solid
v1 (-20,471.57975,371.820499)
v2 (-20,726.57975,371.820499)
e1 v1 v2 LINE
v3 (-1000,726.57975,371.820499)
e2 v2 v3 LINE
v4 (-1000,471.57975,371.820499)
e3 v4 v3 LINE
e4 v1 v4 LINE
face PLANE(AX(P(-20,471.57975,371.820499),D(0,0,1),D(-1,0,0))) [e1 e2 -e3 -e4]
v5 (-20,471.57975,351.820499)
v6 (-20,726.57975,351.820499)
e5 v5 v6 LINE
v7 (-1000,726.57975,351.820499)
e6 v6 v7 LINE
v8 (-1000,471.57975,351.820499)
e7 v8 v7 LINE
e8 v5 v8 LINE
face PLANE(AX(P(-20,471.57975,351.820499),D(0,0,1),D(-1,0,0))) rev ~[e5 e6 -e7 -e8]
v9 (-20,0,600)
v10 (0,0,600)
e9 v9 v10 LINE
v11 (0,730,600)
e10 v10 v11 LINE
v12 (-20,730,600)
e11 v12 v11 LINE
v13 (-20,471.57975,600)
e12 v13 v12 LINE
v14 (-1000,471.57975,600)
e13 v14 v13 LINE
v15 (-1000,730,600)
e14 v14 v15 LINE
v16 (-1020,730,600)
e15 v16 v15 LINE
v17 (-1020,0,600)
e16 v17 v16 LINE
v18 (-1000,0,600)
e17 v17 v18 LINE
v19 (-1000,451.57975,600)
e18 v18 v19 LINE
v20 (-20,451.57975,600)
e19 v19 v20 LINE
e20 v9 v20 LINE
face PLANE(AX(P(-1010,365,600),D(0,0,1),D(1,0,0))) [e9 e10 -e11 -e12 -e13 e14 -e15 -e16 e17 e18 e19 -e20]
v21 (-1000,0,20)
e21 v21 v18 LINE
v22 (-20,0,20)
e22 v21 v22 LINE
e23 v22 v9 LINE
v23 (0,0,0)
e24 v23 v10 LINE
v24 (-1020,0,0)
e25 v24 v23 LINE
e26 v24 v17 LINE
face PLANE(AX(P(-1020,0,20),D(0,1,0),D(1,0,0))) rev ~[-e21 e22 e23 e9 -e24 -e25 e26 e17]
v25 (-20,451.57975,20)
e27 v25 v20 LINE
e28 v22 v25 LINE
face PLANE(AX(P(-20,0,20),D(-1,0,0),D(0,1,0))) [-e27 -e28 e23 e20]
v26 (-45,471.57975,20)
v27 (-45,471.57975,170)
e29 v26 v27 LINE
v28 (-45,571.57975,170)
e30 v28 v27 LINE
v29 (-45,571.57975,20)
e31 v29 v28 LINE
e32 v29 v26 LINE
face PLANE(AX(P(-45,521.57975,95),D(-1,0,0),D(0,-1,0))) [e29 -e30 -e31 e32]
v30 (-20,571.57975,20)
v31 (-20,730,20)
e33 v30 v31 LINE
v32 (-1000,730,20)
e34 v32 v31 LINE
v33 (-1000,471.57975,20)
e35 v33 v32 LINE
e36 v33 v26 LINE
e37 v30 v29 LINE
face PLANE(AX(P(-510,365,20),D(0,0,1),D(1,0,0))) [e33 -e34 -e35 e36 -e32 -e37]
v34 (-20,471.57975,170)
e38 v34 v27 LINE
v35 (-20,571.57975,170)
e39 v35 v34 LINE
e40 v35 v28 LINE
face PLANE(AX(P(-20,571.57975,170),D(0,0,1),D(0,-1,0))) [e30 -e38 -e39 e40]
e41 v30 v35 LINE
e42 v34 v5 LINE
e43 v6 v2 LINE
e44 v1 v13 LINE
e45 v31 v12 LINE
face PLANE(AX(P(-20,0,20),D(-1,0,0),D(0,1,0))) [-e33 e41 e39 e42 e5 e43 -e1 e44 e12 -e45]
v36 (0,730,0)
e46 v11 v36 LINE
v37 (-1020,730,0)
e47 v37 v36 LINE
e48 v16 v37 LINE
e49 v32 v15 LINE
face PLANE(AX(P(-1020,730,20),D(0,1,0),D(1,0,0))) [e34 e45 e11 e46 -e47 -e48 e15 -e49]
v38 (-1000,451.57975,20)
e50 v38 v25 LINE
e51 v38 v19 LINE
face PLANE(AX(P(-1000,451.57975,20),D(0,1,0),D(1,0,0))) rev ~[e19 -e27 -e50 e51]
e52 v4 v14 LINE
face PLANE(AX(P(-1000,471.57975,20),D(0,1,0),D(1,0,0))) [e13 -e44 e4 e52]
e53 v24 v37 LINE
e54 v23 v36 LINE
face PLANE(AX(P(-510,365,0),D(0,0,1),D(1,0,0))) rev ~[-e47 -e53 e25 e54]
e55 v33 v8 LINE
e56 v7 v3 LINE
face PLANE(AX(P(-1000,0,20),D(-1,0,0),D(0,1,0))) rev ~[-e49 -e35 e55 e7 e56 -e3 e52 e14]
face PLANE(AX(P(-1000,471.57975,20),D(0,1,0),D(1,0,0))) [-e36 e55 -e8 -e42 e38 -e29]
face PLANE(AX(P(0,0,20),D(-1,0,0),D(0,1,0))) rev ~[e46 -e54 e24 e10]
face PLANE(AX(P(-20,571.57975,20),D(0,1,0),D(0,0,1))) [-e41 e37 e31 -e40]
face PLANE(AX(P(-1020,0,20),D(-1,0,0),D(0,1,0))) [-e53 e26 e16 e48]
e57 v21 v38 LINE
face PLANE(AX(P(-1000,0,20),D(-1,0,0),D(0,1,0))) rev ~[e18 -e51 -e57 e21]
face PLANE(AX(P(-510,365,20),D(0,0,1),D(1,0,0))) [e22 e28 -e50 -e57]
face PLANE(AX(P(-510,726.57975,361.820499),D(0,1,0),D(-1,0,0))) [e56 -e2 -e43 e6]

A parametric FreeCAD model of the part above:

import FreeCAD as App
import Part
import Sketcher

V = App.Vector
Q = App.Units.Quantity

doc = App.newDocument("Part")
params = doc.addObject("Spreadsheet::Sheet", "Params")
for row, (alias, value) in enumerate([
    ("sketch1_width", "1020 mm"),
    ("sketch1_height", "730 mm"),
    ("pad1_length", "20 mm"),
    ("sketch2_width", "20 mm"),
    ("sketch2_height", "730 mm"),
    ("pad2_length", "580 mm"),
    ("sketch3_width", "20 mm"),
    ("sketch3_height", "730 mm"),
    ("pad3_length", "580 mm"),
    ("sketch4_width", "980 mm"),
    ("sketch4_height", "20 mm"),
    ("pad4_length", "580 mm"),
    ("sketch5_width", "980 mm"),
    ("sketch5_height", "20 mm"),
    ("pad5_length", "255 mm"),
    ("sketch6_width", "100 mm"),
    ("sketch6_height", "150 mm"),
    ("pad6_length", "25 mm"),
], start=1):
    params.set(f"A{row}", alias)
    params.set(f"B{row}", "=" + value)
    params.setAlias(f"B{row}", alias)

body = doc.addObject("PartDesign::Body", "Body")

sketch1 = body.newObject("Sketcher::SketchObject", "Sketch")
sketch1.AttachmentSupport = (doc.getObject("XY_Plane"), [""])
sketch1.MapMode = "FlatFace"
sketch1.addGeometry([
    Part.LineSegment(V(-1020, 730, 0), V(-1020, 0, 0)),
    Part.LineSegment(V(-1020, 0, 0), V(0, 0, 0)),
    Part.LineSegment(V(0, 0, 0), V(0, 730, 0)),
    Part.LineSegment(V(0, 730, 0), V(-1020, 730, 0)),
], False)
sketch1.addConstraint([
    Sketcher.Constraint("Coincident", 0, 2, 1, 1),
    Sketcher.Constraint("Coincident", 1, 2, 2, 1),
    Sketcher.Constraint("Coincident", 2, 2, 3, 1),
    Sketcher.Constraint("Coincident", 3, 2, 0, 1),
    Sketcher.Constraint("Vertical", 0),
    Sketcher.Constraint("Horizontal", 1),
    Sketcher.Constraint("Vertical", 2),
    Sketcher.Constraint("Horizontal", 3),
    Sketcher.Constraint("Coincident", 1, 2, -1, 1),
    Sketcher.Constraint("DistanceX", 1, 1, 1, 2, Q("1020 mm")),
    Sketcher.Constraint("DistanceY", 0, 2, 0, 1, Q("730 mm")),
])
sketch1.setExpression("Constraints[9]", "Params.sketch1_width")
sketch1.setExpression("Constraints[10]", "Params.sketch1_height")
pad1 = body.newObject("PartDesign::Pad", "Pad")
pad1.Profile = sketch1
pad1.setExpression("Length", "Params.pad1_length")

sketch2 = body.newObject("Sketcher::SketchObject", "Sketch001")
sketch2.AttachmentSupport = (doc.getObject("XY_Plane"), [""])
sketch2.MapMode = "FlatFace"
sketch2.AttachmentOffset = App.Placement(V(0, 0, 20), App.Rotation())
sketch2.addGeometry([
    Part.LineSegment(V(-20, 730, 0), V(-20, 0, 0)),
    Part.LineSegment(V(-20, 0, 0), V(0, 0, 0)),
    Part.LineSegment(V(0, 0, 0), V(0, 730, 0)),
    Part.LineSegment(V(0, 730, 0), V(-20, 730, 0)),
], False)
sketch2.addConstraint([
    Sketcher.Constraint("Coincident", 0, 2, 1, 1),
    Sketcher.Constraint("Coincident", 1, 2, 2, 1),
    Sketcher.Constraint("Coincident", 2, 2, 3, 1),
    Sketcher.Constraint("Coincident", 3, 2, 0, 1),
    Sketcher.Constraint("Vertical", 0),
    Sketcher.Constraint("Horizontal", 1),
    Sketcher.Constraint("Vertical", 2),
    Sketcher.Constraint("Horizontal", 3),
    Sketcher.Constraint("Coincident", 1, 2, -1, 1),
    Sketcher.Constraint("DistanceX", 1, 1, 1, 2, Q("20 mm")),
    Sketcher.Constraint("DistanceY", 0, 2, 0, 1, Q("730 mm")),
])
sketch2.setExpression("Constraints[9]", "Params.sketch2_width")
sketch2.setExpression("Constraints[10]", "Params.sketch2_height")
pad2 = body.newObject("PartDesign::Pad", "Pad001")
pad2.Profile = sketch2
pad2.setExpression("Length", "Params.pad2_length")

sketch3 = body.newObject("Sketcher::SketchObject", "Sketch002")
sketch3.AttachmentSupport = (doc.getObject("XY_Plane"), [""])
sketch3.MapMode = "FlatFace"
sketch3.AttachmentOffset = App.Placement(V(0, 0, 20), App.Rotation())
sketch3.addGeometry([
    Part.LineSegment(V(-1020, 730, 0), V(-1020, 0, 0)),
    Part.LineSegment(V(-1020, 0, 0), V(-1000, 0, 0)),
    Part.LineSegment(V(-1000, 0, 0), V(-1000, 730, 0)),
    Part.LineSegment(V(-1000, 730, 0), V(-1020, 730, 0)),
], False)
sketch3.addConstraint([
    Sketcher.Constraint("Coincident", 0, 2, 1, 1),
    Sketcher.Constraint("Coincident", 1, 2, 2, 1),
    Sketcher.Constraint("Coincident", 2, 2, 3, 1),
    Sketcher.Constraint("Coincident", 3, 2, 0, 1),
    Sketcher.Constraint("Vertical", 0),
    Sketcher.Constraint("Horizontal", 1),
    Sketcher.Constraint("Vertical", 2),
    Sketcher.Constraint("Horizontal", 3),
    Sketcher.Constraint("PointOnObject", 0, 2, -1),
    Sketcher.Constraint("DistanceX", 1, 1, 1, 2, Q("20 mm")),
    Sketcher.Constraint("DistanceY", 0, 2, 0, 1, Q("730 mm")),
    Sketcher.Constraint("DistanceX", 0, 2, -1, 1, Q("1020 mm")),
])
sketch3.setExpression("Constraints[9]", "Params.sketch3_width")
sketch3.setExpression("Constraints[10]", "Params.sketch3_height")
pad3 = body.newObject("PartDesign::Pad", "Pad002")
pad3.Profile = sketch3
pad3.setExpression("Length", "Params.pad3_length")

sketch4 = body.newObject("Sketcher::SketchObject", "Sketch003")
sketch4.AttachmentSupport = (doc.getObject("XY_Plane"), [""])
sketch4.MapMode = "FlatFace"
sketch4.AttachmentOffset = App.Placement(V(0, 0, 20), App.Rotation())
sketch4.addGeometry([
    Part.LineSegment(V(-1000, 472, 0), V(-1000, 452, 0)),
    Part.LineSegment(V(-1000, 452, 0), V(-20, 452, 0)),
    Part.LineSegment(V(-20, 452, 0), V(-20, 472, 0)),
    Part.LineSegment(V(-20, 472, 0), V(-1000, 472, 0)),
], False)
sketch4.addConstraint([
    Sketcher.Constraint("Coincident", 0, 2, 1, 1),
    Sketcher.Constraint("Coincident", 1, 2, 2, 1),
    Sketcher.Constraint("Coincident", 2, 2, 3, 1),
    Sketcher.Constraint("Coincident", 3, 2, 0, 1),
    Sketcher.Constraint("Vertical", 0),
    Sketcher.Constraint("Horizontal", 1),
    Sketcher.Constraint("Vertical", 2),
    Sketcher.Constraint("Horizontal", 3),
    Sketcher.Constraint("DistanceX", 1, 1, 1, 2, Q("980 mm")),
    Sketcher.Constraint("DistanceY", 0, 2, 0, 1, Q("20 mm")),
    Sketcher.Constraint("DistanceX", 0, 2, -1, 1, Q("1000 mm")),
    Sketcher.Constraint("DistanceY", -1, 1, 0, 2, Q("451.57975 mm")),
])
sketch4.setExpression("Constraints[8]", "Params.sketch4_width")
sketch4.setExpression("Constraints[9]", "Params.sketch4_height")
pad4 = body.newObject("PartDesign::Pad", "Pad003")
pad4.Profile = sketch4
pad4.setExpression("Length", "Params.pad4_length")

sketch5 = body.newObject("Sketcher::SketchObject", "Sketch004")
sketch5.AttachmentSupport = (doc.getObject("XZ_Plane"), [""])
sketch5.MapMode = "FlatFace"
sketch5.AttachmentOffset = App.Placement(V(0, 0, -471.57975), App.Rotation())
sketch5.addGeometry([
    Part.LineSegment(V(-20, 372, 0), V(-20, 352, 0)),
    Part.LineSegment(V(-20, 352, 0), V(-1000, 352, 0)),
    Part.LineSegment(V(-1000, 352, 0), V(-1000, 372, 0)),
    Part.LineSegment(V(-1000, 372, 0), V(-20, 372, 0)),
], False)
sketch5.addConstraint([
    Sketcher.Constraint("Coincident", 0, 2, 1, 1),
    Sketcher.Constraint("Coincident", 1, 2, 2, 1),
    Sketcher.Constraint("Coincident", 2, 2, 3, 1),
    Sketcher.Constraint("Coincident", 3, 2, 0, 1),
    Sketcher.Constraint("Vertical", 0),
    Sketcher.Constraint("Horizontal", 1),
    Sketcher.Constraint("Vertical", 2),
    Sketcher.Constraint("Horizontal", 3),
    Sketcher.Constraint("DistanceX", 1, 2, 1, 1, Q("980 mm")),
    Sketcher.Constraint("DistanceY", 0, 2, 0, 1, Q("20 mm")),
    Sketcher.Constraint("DistanceX", 0, 2, -1, 1, Q("20 mm")),
    Sketcher.Constraint("DistanceY", -1, 1, 0, 2, Q("351.820499 mm")),
])
sketch5.setExpression("Constraints[8]", "Params.sketch5_width")
sketch5.setExpression("Constraints[9]", "Params.sketch5_height")
pad5 = body.newObject("PartDesign::Pad", "Pad004")
pad5.Profile = sketch5
pad5.setExpression("Length", "Params.pad5_length")
pad5.Reversed = True

sketch6 = body.newObject("Sketcher::SketchObject", "Sketch005")
sketch6.AttachmentSupport = (doc.getObject("YZ_Plane"), [""])
sketch6.MapMode = "FlatFace"
sketch6.AttachmentOffset = App.Placement(V(0, 0, -20), App.Rotation())
sketch6.addGeometry([
    Part.LineSegment(V(572, 170, 0), V(572, 20, 0)),
    Part.LineSegment(V(572, 20, 0), V(472, 20, 0)),
    Part.LineSegment(V(472, 20, 0), V(472, 170, 0)),
    Part.LineSegment(V(472, 170, 0), V(572, 170, 0)),
], False)
sketch6.addConstraint([
    Sketcher.Constraint("Coincident", 0, 2, 1, 1),
    Sketcher.Constraint("Coincident", 1, 2, 2, 1),
    Sketcher.Constraint("Coincident", 2, 2, 3, 1),
    Sketcher.Constraint("Coincident", 3, 2, 0, 1),
    Sketcher.Constraint("Vertical", 0),
    Sketcher.Constraint("Horizontal", 1),
    Sketcher.Constraint("Vertical", 2),
    Sketcher.Constraint("Horizontal", 3),
    Sketcher.Constraint("DistanceX", 1, 2, 1, 1, Q("100 mm")),
    Sketcher.Constraint("DistanceY", 0, 2, 0, 1, Q("150 mm")),
    Sketcher.Constraint("DistanceY", -1, 1, 0, 2, Q("20 mm")),
    Sketcher.Constraint("DistanceX", -1, 1, 0, 2, Q("571.57975 mm")),
])
sketch6.setExpression("Constraints[8]", "Params.sketch6_width")
sketch6.setExpression("Constraints[9]", "Params.sketch6_height")
pad6 = body.newObject("PartDesign::Pad", "Pad005")
pad6.Profile = sketch6
pad6.setExpression("Length", "Params.pad6_length")
pad6.Reversed = True

doc.recompute()
